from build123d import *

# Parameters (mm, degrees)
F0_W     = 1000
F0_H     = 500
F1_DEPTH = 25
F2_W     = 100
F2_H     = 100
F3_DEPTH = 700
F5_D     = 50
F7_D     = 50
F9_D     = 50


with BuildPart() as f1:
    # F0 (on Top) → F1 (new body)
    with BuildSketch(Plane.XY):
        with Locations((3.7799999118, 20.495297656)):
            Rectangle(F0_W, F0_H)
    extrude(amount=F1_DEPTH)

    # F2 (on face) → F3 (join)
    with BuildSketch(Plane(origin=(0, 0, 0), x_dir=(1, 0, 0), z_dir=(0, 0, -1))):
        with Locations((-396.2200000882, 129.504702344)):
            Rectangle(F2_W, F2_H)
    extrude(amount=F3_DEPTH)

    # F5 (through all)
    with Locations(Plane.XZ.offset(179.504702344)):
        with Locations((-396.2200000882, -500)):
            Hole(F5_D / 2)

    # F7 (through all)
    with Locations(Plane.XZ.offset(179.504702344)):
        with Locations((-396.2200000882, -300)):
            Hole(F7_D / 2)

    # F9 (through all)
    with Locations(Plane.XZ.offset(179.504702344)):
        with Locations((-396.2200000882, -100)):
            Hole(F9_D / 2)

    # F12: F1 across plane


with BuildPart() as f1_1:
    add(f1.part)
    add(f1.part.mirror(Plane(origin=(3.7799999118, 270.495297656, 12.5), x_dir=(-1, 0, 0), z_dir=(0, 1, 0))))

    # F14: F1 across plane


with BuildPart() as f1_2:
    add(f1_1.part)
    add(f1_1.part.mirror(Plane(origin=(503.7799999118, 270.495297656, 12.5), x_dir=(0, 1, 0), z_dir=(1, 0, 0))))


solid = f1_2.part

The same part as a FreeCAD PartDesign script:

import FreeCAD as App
import Part
import Sketcher

doc = App.newDocument("Part")
body = doc.addObject("PartDesign::Body", "Body")

sketch1 = doc.addObject("Sketcher::SketchObject", "Sketch")
body.addObject(sketch1)
sketch1.AttachmentSupport = (doc.XY_Plane, [""])
sketch1.MapMode = "FlatFace"
sketch1.addGeometry(Part.LineSegment(App.Vector(-496, 270, 0), App.Vector(-496, -230, 0)), False)
sketch1.addGeometry(Part.LineSegment(App.Vector(-496, -230, 0), App.Vector(504, -230, 0)), False)
sketch1.addGeometry(Part.LineSegment(App.Vector(504, -230, 0), App.Vector(504, 270, 0)), False)
sketch1.addGeometry(Part.LineSegment(App.Vector(504, 270, 0), App.Vector(-496, 270, 0)), False)
sketch1.addConstraint(Sketcher.Constraint("Coincident", 0, 2, 1, 1))
sketch1.addConstraint(Sketcher.Constraint("Coincident", 1, 2, 2, 1))
sketch1.addConstraint(Sketcher.Constraint("Coincident", 2, 2, 3, 1))
sketch1.addConstraint(Sketcher.Constraint("Coincident", 3, 2, 0, 1))
sketch1.addConstraint(Sketcher.Constraint("Vertical", 0))
sketch1.addConstraint(Sketcher.Constraint("Horizontal", 1))
sketch1.addConstraint(Sketcher.Constraint("Vertical", 2))
sketch1.addConstraint(Sketcher.Constraint("Horizontal", 3))
sketch1.addConstraint(Sketcher.Constraint("DistanceX", 1, 1, 1, 2, 1000.0))
sketch1.addConstraint(Sketcher.Constraint("DistanceY", 0, 2, 0, 1, 500.0))
sketch1.addConstraint(Sketcher.Constraint("DistanceX", 0, 2, -1, 1, 496.22))
sketch1.addConstraint(Sketcher.Constraint("DistanceY", 0, 2, -1, 1, 229.504702))
pad1 = doc.addObject("PartDesign::Pad", "Pad")
body.addObject(pad1)
pad1.Profile = sketch1
pad1.Length = 25

sketch2 = doc.addObject("Sketcher::SketchObject", "Sketch001")
body.addObject(sketch2)
sketch2.AttachmentSupport = (doc.XY_Plane, [""])
sketch2.MapMode = "FlatFace"
sketch2.addGeometry(Part.LineSegment(App.Vector(-446, -180, 0), App.Vector(-446, -80, 0)), False)
sketch2.addGeometry(Part.LineSegment(App.Vector(-446, -80, 0), App.Vector(-346, -80, 0)), False)
sketch2.addGeometry(Part.LineSegment(App.Vector(-346, -80, 0), App.Vector(-346, -180, 0)), False)
sketch2.addGeometry(Part.LineSegment(App.Vector(-346, -180, 0), App.Vector(-446, -180, 0)), False)
sketch2.addConstraint(Sketcher.Constraint("Coincident", 0, 2, 1, 1))
sketch2.addConstraint(Sketcher.Constraint("Coincident", 1, 2, 2, 1))
sketch2.addConstraint(Sketcher.Constraint("Coincident", 2, 2, 3, 1))
sketch2.addConstraint(Sketcher.Constraint("Coincident", 3, 2, 0, 1))
sketch2.addConstraint(Sketcher.Constraint("Vertical", 0))
sketch2.addConstraint(Sketcher.Constraint("Horizontal", 1))
sketch2.addConstraint(Sketcher.Constraint("Vertical", 2))
sketch2.addConstraint(Sketcher.Constraint("Horizontal", 3))
sketch2.addConstraint(Sketcher.Constraint("Equal", 3, 0))
sketch2.addConstraint(Sketcher.Constraint("DistanceX", 1, 1, 1, 2, 100.0))
sketch2.addConstraint(Sketcher.Constraint("DistanceX", 0, 2, -1, 1, 446.22))
sketch2.addConstraint(Sketcher.Constraint("DistanceY", 0, 2, -1, 1, 79.504702))
pad2 = doc.addObject("PartDesign::Pad", "Pad001")
body.addObject(pad2)
pad2.Profile = sketch2
pad2.Length = 700
pad2.Reversed = True

sketch3 = doc.addObject("Sketcher::SketchObject", "Sketch002")
body.addObject(sketch3)
sketch3.AttachmentSupport = (doc.XZ_Plane, [""])
sketch3.MapMode = "FlatFace"
sketch3.AttachmentOffset = App.Placement(App.Vector(0, 0, 179.504702), App.Rotation())
sketch3.addGeometry(Part.Circle(App.Vector(-396, -500, 0), App.Vector(0, 0, 1), 25), False)
sketch3.addConstraint(Sketcher.Constraint("Diameter", 0, 50.0))
sketch3.addConstraint(Sketcher.Constraint("DistanceY", 0, 3, -1, 1, 500.0))
sketch3.addConstraint(Sketcher.Constraint("DistanceX", 0, 3, -1, 1, 396.22))
doc.recompute()
hole = doc.addObject("PartDesign::Hole", "Hole")
body.addObject(hole)
hole.Profile = sketch3
hole.ThreadType = "None"
hole.Diameter = 50
hole.DepthType = "ThroughAll"

sketch4 = doc.addObject("Sketcher::SketchObject", "Sketch003")
body.addObject(sketch4)
sketch4.AttachmentSupport = (doc.XZ_Plane, [""])
sketch4.MapMode = "FlatFace"
sketch4.AttachmentOffset = App.Placement(App.Vector(0, 0, 179.504702), App.Rotation())
sketch4.addGeometry(Part.Circle(App.Vector(-396, -300, 0), App.Vector(0, 0, 1), 25), False)
sketch4.addConstraint(Sketcher.Constraint("Diameter", 0, 50.0))
sketch4.addConstraint(Sketcher.Constraint("DistanceY", 0, 3, -1, 1, 300.0))
sketch4.addConstraint(Sketcher.Constraint("DistanceX", 0, 3, -1, 1, 396.22))
doc.recompute()
hole2 = doc.addObject("PartDesign::Hole", "Hole001")
body.addObject(hole2)
hole2.Profile = sketch4
hole2.ThreadType = "None"
hole2.Diameter = 50
hole2.DepthType = "ThroughAll"

sketch5 = doc.addObject("Sketcher::SketchObject", "Sketch004")
body.addObject(sketch5)
sketch5.AttachmentSupport = (doc.XZ_Plane, [""])
sketch5.MapMode = "FlatFace"
sketch5.AttachmentOffset = App.Placement(App.Vector(0, 0, 179.504702), App.Rotation())
sketch5.addGeometry(Part.Circle(App.Vector(-396, -100, 0), App.Vector(0, 0, 1), 25), False)
sketch5.addConstraint(Sketcher.Constraint("Diameter", 0, 50.0))
sketch5.addConstraint(Sketcher.Constraint("DistanceY", 0, 3, -1, 1, 100.0))
sketch5.addConstraint(Sketcher.Constraint("DistanceX", 0, 3, -1, 1, 396.22))
doc.recompute()
hole3 = doc.addObject("PartDesign::Hole", "Hole002")
body.addObject(hole3)
hole3.Profile = sketch5
hole3.ThreadType = "None"
hole3.Diameter = 50
hole3.DepthType = "ThroughAll"
body2 = doc.addObject("PartDesign::Body", "Body001")
doc.recompute()

body2.BaseFeature = body
doc.recompute()

mirroring = doc.addObject("Part::Mirroring", "Mirroring")
mirroring.Source = body
mirroring.Base = App.Vector(3.78, 270.495298, 12.5)
mirroring.Normal = App.Vector(0, 1, 0)
body3 = doc.addObject("PartDesign::Body", "Body002")
body3.BaseFeature = mirroring
boolean = doc.addObject("PartDesign::Boolean", "Boolean")
body2.addObject(boolean)
boolean.Type = "Fuse"
boolean.addObjects([body3])
doc.recompute()
body4 = doc.addObject("PartDesign::Body", "Body003")
doc.recompute()

body4.BaseFeature = body2
doc.recompute()

mirroring2 = doc.addObject("Part::Mirroring", "Mirroring001")
mirroring2.Source = body2
mirroring2.Base = App.Vector(503.78, 270.495298, 12.5)
mirroring2.Normal = App.Vector(1, 0, 0)
body5 = doc.addObject("PartDesign::Body", "Body004")
body5.BaseFeature = mirroring2
boolean2 = doc.addObject("PartDesign::Boolean", "Boolean001")
body4.addObject(boolean2)
boolean2.Type = "Fuse"
boolean2.addObjects([body5])
doc.recompute()
mirroring.Visibility = False
mirroring2.Visibility = False

doc.recompute()
